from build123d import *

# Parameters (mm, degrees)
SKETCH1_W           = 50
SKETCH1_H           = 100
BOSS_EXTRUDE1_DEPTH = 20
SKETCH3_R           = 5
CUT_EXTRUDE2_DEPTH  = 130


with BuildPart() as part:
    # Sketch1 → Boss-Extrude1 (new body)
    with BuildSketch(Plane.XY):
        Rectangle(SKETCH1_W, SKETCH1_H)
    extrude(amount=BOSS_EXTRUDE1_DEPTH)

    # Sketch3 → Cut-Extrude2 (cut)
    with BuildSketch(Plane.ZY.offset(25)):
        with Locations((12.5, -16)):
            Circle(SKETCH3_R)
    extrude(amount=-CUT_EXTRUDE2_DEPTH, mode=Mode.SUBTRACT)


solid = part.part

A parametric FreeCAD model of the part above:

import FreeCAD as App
import Part
import Sketcher

doc = App.newDocument("Part")
params = doc.addObject("Spreadsheet::Sheet", "Params")
for row, (alias, value) in enumerate([
    ("sketch1_width", "50 mm"),
    ("sketch1_height", "100 mm"),
    ("pad1_length", "20 mm"),
    ("sketch2_diameter", "10 mm"),
    ("pocket1_length", "130 mm"),
], start=1):
    params.set(f"A{row}", alias)
    params.set(f"B{row}", "=" + value)
    params.setAlias(f"B{row}", alias)

body = doc.addObject("PartDesign::Body", "Body")

# Sketch on XY plane
sketch1 = body.newObject("Sketcher::SketchObject", "Sketch")
sketch1.AttachmentSupport = (doc.getObject("XY_Plane"), [""])
sketch1.MapMode = "FlatFace"
sketch1.addGeometry([
    Part.LineSegment(App.Vector(-25, 50, 0), App.Vector(-25, -50, 0)),
    Part.LineSegment(App.Vector(-25, -50, 0), App.Vector(25, -50, 0)),
    Part.LineSegment(App.Vector(25, -50, 0), App.Vector(25, 50, 0)),
    Part.LineSegment(App.Vector(25, 50, 0), App.Vector(-25, 50, 0)),
], False)
sketch1.addConstraint([
    Sketcher.Constraint("Coincident", 0, 2, 1, 1),
    Sketcher.Constraint("Coincident", 1, 2, 2, 1),
    Sketcher.Constraint("Coincident", 2, 2, 3, 1),
    Sketcher.Constraint("Coincident", 3, 2, 0, 1),
    Sketcher.Constraint("Vertical", 0),
    Sketcher.Constraint("Horizontal", 1),
    Sketcher.Constraint("Vertical", 2),
    Sketcher.Constraint("Horizontal", 3),
    Sketcher.Constraint("Symmetric", 0, 2, 2, 2, -1, 1),
    Sketcher.Constraint("DistanceX", 1, 1, 1, 2, 50.0),
    Sketcher.Constraint("DistanceY", 0, 2, 0, 1, 100.0),
])
sketch1.setExpression("Constraints[9]", "Params.sketch1_width")
sketch1.setExpression("Constraints[10]", "Params.sketch1_height")
pad1 = body.newObject("PartDesign::Pad", "Pad")
pad1.Profile = sketch1
pad1.setExpression("Length", "Params.pad1_length")

# Sketch on YZ plane
sketch2 = body.newObject("Sketcher::SketchObject", "Sketch001")
sketch2.AttachmentSupport = (doc.getObject("YZ_Plane"), [""])
sketch2.MapMode = "FlatFace"
sketch2.AttachmentOffset = App.Placement(App.Vector(0, 0, -25), App.Rotation())
sketch2.addGeometry(Part.Circle(App.Vector(-16, 12, 0), App.Vector(0, 0, 1), 5), False)
sketch2.addConstraint([
    Sketcher.Constraint("Diameter", 0, 10.0),
    Sketcher.Constraint("DistanceX", 0, 3, -1, 1, 16.0),
    Sketcher.Constraint("DistanceY", -1, 1, 0, 3, 12.5),
])
sketch2.setExpression("Constraints[0]", "Params.sketch2_diameter")
pocket1 = body.newObject("PartDesign::Pocket", "Pocket")
pocket1.Profile = sketch2
pocket1.setExpression("Length", "Params.pocket1_length")
pocket1.Reversed = True

doc.recompute()
